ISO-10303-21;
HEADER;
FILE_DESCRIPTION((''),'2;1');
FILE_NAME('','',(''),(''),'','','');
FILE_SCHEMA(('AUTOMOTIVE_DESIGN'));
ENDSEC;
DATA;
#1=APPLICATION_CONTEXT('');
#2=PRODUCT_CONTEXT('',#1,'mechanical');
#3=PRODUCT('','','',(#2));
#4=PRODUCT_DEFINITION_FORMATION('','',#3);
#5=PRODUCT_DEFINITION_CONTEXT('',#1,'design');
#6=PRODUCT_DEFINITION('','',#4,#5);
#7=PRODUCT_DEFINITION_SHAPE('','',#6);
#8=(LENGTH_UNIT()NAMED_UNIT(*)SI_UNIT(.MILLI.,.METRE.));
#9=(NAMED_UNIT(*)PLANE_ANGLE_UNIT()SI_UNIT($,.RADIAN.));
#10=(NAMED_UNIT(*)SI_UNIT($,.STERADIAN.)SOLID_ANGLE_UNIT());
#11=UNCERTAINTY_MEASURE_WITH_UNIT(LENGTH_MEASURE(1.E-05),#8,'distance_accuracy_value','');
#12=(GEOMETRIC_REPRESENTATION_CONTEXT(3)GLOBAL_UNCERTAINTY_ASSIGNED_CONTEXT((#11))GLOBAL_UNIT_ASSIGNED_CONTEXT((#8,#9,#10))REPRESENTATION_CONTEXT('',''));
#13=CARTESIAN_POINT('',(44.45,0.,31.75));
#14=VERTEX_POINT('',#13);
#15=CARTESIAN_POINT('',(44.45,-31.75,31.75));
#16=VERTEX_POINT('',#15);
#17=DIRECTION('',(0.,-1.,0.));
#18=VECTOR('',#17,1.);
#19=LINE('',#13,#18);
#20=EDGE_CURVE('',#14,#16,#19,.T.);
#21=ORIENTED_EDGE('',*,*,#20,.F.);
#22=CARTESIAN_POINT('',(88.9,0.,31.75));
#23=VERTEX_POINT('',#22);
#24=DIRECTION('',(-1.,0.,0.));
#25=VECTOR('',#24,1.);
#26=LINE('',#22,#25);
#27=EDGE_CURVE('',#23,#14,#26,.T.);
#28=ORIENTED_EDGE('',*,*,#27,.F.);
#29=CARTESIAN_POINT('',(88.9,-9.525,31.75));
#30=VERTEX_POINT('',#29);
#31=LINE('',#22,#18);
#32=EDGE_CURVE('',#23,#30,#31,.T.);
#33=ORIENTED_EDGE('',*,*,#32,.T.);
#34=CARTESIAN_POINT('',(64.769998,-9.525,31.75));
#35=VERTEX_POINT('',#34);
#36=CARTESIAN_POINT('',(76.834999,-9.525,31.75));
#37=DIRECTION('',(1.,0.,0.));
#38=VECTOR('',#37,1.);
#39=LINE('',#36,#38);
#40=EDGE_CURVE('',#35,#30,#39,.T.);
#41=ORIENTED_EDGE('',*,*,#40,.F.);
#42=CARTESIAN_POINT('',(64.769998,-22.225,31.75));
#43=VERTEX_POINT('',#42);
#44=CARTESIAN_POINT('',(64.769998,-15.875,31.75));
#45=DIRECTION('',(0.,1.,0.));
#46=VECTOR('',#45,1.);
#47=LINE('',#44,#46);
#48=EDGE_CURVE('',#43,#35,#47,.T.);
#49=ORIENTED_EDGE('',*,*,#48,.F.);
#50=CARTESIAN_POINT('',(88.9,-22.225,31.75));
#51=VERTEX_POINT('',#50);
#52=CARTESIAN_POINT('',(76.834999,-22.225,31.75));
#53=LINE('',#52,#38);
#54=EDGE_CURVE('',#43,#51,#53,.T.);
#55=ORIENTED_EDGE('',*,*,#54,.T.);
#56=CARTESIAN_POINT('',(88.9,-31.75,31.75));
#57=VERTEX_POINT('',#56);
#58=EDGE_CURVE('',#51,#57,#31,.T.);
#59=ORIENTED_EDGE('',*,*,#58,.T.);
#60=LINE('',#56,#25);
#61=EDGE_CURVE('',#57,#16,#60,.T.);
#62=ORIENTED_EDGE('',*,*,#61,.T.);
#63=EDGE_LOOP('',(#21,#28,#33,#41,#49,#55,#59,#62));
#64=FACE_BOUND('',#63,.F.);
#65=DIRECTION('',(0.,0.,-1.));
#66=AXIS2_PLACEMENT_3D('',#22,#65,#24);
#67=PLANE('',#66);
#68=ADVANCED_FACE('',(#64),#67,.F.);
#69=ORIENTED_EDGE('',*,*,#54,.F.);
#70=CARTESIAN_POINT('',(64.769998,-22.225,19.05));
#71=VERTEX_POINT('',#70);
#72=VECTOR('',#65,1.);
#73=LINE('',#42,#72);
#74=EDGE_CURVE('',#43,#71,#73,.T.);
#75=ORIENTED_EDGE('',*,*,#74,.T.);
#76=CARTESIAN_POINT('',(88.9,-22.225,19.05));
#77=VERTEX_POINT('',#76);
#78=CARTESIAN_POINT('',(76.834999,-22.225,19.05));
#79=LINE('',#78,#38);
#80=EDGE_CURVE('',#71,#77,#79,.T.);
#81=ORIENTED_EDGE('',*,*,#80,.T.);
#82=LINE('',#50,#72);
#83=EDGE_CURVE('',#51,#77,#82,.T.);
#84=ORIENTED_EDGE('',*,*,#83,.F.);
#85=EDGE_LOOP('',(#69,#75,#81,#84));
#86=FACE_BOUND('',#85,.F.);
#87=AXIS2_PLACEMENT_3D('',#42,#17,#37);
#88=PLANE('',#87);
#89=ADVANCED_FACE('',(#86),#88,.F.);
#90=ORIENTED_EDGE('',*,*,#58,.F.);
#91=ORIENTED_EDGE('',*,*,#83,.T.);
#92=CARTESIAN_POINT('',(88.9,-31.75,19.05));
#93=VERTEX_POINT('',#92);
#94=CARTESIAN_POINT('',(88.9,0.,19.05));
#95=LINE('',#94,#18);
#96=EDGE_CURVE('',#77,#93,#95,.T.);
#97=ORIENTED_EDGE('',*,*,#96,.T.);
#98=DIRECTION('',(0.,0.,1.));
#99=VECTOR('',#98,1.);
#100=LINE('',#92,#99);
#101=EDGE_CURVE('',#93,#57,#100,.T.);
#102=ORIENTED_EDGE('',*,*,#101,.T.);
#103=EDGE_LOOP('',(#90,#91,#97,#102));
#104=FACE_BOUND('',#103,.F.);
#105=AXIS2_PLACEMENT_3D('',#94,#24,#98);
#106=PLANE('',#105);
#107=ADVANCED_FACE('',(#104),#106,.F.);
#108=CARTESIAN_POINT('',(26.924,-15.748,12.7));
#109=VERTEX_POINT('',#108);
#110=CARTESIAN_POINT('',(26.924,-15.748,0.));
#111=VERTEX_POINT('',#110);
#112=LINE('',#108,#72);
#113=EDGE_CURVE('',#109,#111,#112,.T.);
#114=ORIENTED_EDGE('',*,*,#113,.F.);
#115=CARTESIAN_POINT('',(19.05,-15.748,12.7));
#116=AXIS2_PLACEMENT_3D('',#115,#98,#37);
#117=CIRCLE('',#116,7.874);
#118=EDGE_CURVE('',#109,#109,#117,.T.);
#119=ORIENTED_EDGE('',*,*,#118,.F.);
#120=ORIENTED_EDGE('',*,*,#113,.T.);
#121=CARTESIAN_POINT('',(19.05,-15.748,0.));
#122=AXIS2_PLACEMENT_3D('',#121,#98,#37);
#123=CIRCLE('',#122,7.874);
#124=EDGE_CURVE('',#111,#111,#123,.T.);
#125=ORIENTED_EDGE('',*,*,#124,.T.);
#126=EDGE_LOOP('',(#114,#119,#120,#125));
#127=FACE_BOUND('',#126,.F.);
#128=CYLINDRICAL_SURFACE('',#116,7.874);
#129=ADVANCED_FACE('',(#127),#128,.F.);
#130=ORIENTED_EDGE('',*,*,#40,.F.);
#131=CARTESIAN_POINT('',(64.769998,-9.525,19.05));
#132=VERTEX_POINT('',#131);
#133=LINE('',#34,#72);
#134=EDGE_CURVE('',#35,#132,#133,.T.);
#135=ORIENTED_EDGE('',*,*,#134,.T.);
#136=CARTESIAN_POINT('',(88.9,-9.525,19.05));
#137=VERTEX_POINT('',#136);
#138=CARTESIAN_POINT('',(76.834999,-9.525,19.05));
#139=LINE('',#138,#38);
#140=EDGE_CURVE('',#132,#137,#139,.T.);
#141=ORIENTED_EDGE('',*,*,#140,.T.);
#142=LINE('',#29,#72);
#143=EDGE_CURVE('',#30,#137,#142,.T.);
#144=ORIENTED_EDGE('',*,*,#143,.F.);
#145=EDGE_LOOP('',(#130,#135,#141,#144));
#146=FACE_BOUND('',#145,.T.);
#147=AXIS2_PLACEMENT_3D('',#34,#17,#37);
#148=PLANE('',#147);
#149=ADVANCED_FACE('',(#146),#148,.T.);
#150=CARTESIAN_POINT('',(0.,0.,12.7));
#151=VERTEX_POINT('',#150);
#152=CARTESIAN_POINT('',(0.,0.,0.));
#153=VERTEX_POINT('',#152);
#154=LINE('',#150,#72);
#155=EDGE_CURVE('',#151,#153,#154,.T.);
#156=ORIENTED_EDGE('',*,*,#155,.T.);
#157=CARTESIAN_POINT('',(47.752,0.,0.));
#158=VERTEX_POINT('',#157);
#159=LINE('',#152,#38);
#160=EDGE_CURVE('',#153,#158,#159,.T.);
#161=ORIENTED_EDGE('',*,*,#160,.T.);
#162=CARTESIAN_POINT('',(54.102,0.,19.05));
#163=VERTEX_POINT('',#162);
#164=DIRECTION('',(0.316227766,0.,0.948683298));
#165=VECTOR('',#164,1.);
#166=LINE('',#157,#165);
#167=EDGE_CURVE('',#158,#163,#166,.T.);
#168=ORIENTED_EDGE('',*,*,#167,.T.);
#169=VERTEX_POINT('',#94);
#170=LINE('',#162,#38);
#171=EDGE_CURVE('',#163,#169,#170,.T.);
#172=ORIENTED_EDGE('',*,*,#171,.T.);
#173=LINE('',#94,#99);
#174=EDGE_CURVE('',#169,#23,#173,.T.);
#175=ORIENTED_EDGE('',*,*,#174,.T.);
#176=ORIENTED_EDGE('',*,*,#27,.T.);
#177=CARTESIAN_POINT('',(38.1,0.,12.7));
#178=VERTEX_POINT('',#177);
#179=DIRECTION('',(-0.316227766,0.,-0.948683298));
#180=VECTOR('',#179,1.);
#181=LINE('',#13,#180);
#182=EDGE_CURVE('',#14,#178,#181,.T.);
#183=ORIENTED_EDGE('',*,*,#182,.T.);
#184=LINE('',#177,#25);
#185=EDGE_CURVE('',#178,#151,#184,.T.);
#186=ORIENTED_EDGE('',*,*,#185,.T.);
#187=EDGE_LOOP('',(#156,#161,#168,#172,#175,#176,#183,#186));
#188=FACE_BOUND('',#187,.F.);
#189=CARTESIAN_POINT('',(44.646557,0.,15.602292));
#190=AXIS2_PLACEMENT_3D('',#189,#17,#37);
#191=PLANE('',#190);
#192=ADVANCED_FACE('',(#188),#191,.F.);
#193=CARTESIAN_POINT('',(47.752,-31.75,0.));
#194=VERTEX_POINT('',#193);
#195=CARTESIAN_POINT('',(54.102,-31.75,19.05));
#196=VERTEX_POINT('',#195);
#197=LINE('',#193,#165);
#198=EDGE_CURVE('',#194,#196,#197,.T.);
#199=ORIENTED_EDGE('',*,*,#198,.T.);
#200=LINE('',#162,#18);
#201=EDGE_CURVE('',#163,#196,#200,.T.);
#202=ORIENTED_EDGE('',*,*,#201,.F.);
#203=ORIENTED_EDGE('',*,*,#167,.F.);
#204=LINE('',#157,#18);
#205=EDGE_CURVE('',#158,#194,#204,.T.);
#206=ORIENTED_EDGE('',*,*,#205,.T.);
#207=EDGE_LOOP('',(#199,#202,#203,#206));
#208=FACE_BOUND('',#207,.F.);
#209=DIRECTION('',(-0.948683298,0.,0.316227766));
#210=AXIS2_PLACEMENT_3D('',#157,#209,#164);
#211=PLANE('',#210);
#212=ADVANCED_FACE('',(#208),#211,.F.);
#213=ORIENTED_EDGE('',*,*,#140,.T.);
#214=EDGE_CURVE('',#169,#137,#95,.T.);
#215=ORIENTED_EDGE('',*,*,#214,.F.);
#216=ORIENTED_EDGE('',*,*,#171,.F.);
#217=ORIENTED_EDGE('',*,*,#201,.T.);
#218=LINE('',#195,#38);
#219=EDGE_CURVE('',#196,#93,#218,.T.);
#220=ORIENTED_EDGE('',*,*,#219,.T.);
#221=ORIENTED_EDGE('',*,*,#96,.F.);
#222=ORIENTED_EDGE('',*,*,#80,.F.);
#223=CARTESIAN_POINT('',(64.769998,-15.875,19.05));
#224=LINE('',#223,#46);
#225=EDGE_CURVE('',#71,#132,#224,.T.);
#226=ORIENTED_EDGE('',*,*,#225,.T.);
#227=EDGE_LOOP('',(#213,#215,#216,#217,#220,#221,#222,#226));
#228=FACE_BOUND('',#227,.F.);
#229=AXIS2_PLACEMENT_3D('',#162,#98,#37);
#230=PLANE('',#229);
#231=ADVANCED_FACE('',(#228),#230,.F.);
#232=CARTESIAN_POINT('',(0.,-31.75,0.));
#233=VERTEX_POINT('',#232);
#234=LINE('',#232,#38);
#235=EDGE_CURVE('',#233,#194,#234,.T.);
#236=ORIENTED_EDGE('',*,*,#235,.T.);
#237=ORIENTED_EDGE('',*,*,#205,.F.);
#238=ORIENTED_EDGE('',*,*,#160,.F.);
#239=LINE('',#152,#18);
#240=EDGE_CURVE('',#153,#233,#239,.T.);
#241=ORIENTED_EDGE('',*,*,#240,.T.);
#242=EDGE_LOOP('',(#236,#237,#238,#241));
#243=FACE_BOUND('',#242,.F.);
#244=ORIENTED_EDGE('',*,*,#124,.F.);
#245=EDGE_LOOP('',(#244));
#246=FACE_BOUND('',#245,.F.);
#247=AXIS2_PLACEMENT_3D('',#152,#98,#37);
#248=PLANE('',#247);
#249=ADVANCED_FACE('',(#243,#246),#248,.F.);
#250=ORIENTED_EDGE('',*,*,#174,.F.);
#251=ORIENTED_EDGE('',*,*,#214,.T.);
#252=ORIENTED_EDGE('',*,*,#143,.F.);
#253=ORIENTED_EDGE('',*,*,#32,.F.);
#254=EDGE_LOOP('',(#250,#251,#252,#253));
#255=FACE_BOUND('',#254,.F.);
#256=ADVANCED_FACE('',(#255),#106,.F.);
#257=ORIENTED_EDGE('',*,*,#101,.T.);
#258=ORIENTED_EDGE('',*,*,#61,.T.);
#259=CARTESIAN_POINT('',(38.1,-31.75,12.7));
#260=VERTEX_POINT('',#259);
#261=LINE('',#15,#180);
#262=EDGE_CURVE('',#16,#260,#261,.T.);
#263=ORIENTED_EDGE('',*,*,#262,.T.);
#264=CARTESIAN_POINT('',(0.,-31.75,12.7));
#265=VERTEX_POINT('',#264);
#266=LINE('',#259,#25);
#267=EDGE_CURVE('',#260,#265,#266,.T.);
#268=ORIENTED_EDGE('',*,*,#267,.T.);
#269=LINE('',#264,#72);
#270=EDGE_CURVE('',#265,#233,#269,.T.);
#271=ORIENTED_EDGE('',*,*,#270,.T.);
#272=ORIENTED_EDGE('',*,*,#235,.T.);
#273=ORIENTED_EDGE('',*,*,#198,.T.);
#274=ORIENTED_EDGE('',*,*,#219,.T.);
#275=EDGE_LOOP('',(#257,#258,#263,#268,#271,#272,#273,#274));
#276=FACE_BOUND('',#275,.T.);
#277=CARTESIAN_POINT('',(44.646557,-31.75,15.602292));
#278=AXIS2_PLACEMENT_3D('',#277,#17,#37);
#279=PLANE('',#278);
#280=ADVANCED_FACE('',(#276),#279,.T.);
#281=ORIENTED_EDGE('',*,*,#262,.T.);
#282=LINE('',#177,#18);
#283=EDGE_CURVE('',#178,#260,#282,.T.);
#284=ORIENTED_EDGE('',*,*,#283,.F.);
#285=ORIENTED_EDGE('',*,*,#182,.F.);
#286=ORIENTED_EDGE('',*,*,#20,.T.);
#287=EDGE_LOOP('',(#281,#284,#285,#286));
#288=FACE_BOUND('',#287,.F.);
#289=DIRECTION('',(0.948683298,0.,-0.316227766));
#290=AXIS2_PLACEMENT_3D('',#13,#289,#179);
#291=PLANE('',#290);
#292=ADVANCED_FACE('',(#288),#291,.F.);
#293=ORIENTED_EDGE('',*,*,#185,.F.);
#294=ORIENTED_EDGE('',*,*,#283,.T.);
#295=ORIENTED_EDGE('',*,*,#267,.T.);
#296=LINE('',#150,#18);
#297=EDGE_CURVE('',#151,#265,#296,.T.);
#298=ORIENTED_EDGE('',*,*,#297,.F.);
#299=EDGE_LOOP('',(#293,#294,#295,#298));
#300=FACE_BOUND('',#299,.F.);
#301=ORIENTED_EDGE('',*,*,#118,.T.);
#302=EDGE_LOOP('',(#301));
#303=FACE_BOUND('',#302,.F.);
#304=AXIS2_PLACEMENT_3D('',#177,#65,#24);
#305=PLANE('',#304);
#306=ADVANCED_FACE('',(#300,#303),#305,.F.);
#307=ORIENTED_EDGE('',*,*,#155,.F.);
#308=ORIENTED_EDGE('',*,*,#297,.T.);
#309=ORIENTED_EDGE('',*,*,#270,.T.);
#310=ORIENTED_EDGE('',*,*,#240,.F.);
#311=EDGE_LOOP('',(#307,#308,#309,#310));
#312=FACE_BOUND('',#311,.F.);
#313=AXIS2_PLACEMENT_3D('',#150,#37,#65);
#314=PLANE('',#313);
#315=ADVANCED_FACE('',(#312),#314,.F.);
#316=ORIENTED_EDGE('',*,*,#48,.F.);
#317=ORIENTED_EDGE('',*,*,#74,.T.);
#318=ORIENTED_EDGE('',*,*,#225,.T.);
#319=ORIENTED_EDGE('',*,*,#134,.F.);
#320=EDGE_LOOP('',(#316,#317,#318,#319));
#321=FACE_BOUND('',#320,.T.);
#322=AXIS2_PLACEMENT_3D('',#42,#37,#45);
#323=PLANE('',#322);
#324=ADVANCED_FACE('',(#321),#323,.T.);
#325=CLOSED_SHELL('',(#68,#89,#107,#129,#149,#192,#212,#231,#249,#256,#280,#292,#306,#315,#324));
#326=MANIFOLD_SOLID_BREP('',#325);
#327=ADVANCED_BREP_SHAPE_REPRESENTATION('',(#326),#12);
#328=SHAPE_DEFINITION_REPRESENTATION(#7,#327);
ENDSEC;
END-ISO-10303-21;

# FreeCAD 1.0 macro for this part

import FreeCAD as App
import Part
import Sketcher
Q = App.Units.Quantity

doc = App.newDocument("Part")
body = doc.addObject("PartDesign::Body", "Body")

# Sketch on XZ plane
sketch1 = body.newObject("Sketcher::SketchObject", "Sketch")
sketch1.AttachmentSupport = (doc.getObject("XZ_Plane"), [""])
sketch1.MapMode = "FlatFace"
sketch1.addGeometry(Part.LineSegment(App.Vector(0, 13, 0), App.Vector(0, 0, 0)), False)
sketch1.addGeometry(Part.LineSegment(App.Vector(0, 0, 0), App.Vector(48, 0, 0)), False)
sketch1.addGeometry(Part.LineSegment(App.Vector(48, 0, 0), App.Vector(54, 19, 0)), False)
sketch1.addGeometry(Part.LineSegment(App.Vector(54, 19, 0), App.Vector(89, 19, 0)), False)
sketch1.addGeometry(Part.LineSegment(App.Vector(89, 19, 0), App.Vector(89, 32, 0)), False)
sketch1.addGeometry(Part.LineSegment(App.Vector(89, 32, 0), App.Vector(44, 32, 0)), False)
sketch1.addGeometry(Part.LineSegment(App.Vector(44, 32, 0), App.Vector(38, 13, 0)), False)
sketch1.addGeometry(Part.LineSegment(App.Vector(38, 13, 0), App.Vector(0, 13, 0)), False)
sketch1.addConstraint(Sketcher.Constraint("Coincident", 0, 2, 1, 1))
sketch1.addConstraint(Sketcher.Constraint("Coincident", 1, 2, 2, 1))
sketch1.addConstraint(Sketcher.Constraint("Coincident", 2, 2, 3, 1))
sketch1.addConstraint(Sketcher.Constraint("Coincident", 3, 2, 4, 1))
sketch1.addConstraint(Sketcher.Constraint("Coincident", 4, 2, 5, 1))
sketch1.addConstraint(Sketcher.Constraint("Coincident", 5, 2, 6, 1))
sketch1.addConstraint(Sketcher.Constraint("Coincident", 6, 2, 7, 1))
sketch1.addConstraint(Sketcher.Constraint("Coincident", 7, 2, 0, 1))
sketch1.addConstraint(Sketcher.Constraint("Vertical", 0))
sketch1.addConstraint(Sketcher.Constraint("Horizontal", 1))
sketch1.addConstraint(Sketcher.Constraint("Horizontal", 3))
sketch1.addConstraint(Sketcher.Constraint("Vertical", 4))
sketch1.addConstraint(Sketcher.Constraint("Horizontal", 5))
sketch1.addConstraint(Sketcher.Constraint("Horizontal", 7))
sketch1.addConstraint(Sketcher.Constraint("Coincident", 0, 2, -1, 1))
sketch1.addConstraint(Sketcher.Constraint("Parallel", 2, 6))
sketch1.addConstraint(Sketcher.Constraint("Equal", 0, 4))
sketch1.addConstraint(Sketcher.Constraint("DistanceX", 7, 2, 7, 1, Q("1.5 in")))
sketch1.addConstraint(Sketcher.Constraint("DistanceY", 0, 2, 0, 1, Q("0.5 in")))
sketch1.addConstraint(Sketcher.Constraint("DistanceX", 6, 2, 3, 2, Q("2 in")))
sketch1.addConstraint(Sketcher.Constraint("DistanceX", 1, 1, 1, 2, Q("1.88 in")))
sketch1.addConstraint(Sketcher.Constraint("DistanceX", 3, 1, 3, 2, Q("1.37 in")))
sketch1.addConstraint(Sketcher.Constraint("DistanceY", -1, 1, 2, 2, Q("0.75 in")))
pad1 = body.newObject("PartDesign::Pad", "Pad")
pad1.Profile = sketch1
pad1.Length = Q("1.25 in")

# Sketch on XY plane
sketch2 = body.newObject("Sketcher::SketchObject", "Sketch001")
sketch2.AttachmentSupport = (doc.getObject("XY_Plane"), [""])
sketch2.MapMode = "FlatFace"
sketch2.AttachmentOffset = App.Placement(App.Vector(0, 0, 1.25 * 25.4), App.Rotation())
sketch2.addGeometry(Part.LineSegment(App.Vector(65, -10, 0), App.Vector(65, -22, 0)), False)
sketch2.addGeometry(Part.LineSegment(App.Vector(65, -22, 0), App.Vector(89, -22, 0)), False)
sketch2.addGeometry(Part.LineSegment(App.Vector(89, -22, 0), App.Vector(89, -10, 0)), False)
sketch2.addGeometry(Part.LineSegment(App.Vector(89, -10, 0), App.Vector(65, -10, 0)), False)
sketch2.addConstraint(Sketcher.Constraint("Coincident", 0, 2, 1, 1))
sketch2.addConstraint(Sketcher.Constraint("Coincident", 1, 2, 2, 1))
sketch2.addConstraint(Sketcher.Constraint("Coincident", 2, 2, 3, 1))
sketch2.addConstraint(Sketcher.Constraint("Coincident", 3, 2, 0, 1))
sketch2.addConstraint(Sketcher.Constraint("Vertical", 0))
sketch2.addConstraint(Sketcher.Constraint("Horizontal", 1))
sketch2.addConstraint(Sketcher.Constraint("Vertical", 2))
sketch2.addConstraint(Sketcher.Constraint("Horizontal", 3))
sketch2.addConstraint(Sketcher.Constraint("DistanceY", 0, 2, 0, 1, Q("0.5 in")))
sketch2.addConstraint(Sketcher.Constraint("DistanceX", 1, 1, 1, 2, Q("0.9500001 in")))
sketch2.addConstraint(Sketcher.Constraint("DistanceX", -1, 1, 1, 2, Q("3.5 in")))
sketch2.addConstraint(Sketcher.Constraint("DistanceY", 0, 2, -1, 1, Q("0.875 in")))
pocket1 = body.newObject("PartDesign::Pocket", "Pocket")
pocket1.Profile = sketch2
pocket1.Length = Q("0.5 in")

# Sketch on XY plane
sketch3 = body.newObject("Sketcher::SketchObject", "Sketch002")
sketch3.AttachmentSupport = (doc.getObject("XY_Plane"), [""])
sketch3.MapMode = "FlatFace"
sketch3.AttachmentOffset = App.Placement(App.Vector(0, 0, 0.5 * 25.4), App.Rotation())
sketch3.addGeometry(Part.Circle(App.Vector(19, -16, 0), App.Vector(0, 0, 1), 8), False)
sketch3.addConstraint(Sketcher.Constraint("Diameter", 0, Q("0.62 in")))
sketch3.addConstraint(Sketcher.Constraint("DistanceX", -1, 1, 0, 3, Q("0.75 in")))
sketch3.addConstraint(Sketcher.Constraint("DistanceY", 0, 3, -1, 1, Q("0.62 in")))
pocket2 = body.newObject("PartDesign::Pocket", "Pocket001")
pocket2.Profile = sketch3
pocket2.Length = Q("0.5 in")

doc.recompute()
